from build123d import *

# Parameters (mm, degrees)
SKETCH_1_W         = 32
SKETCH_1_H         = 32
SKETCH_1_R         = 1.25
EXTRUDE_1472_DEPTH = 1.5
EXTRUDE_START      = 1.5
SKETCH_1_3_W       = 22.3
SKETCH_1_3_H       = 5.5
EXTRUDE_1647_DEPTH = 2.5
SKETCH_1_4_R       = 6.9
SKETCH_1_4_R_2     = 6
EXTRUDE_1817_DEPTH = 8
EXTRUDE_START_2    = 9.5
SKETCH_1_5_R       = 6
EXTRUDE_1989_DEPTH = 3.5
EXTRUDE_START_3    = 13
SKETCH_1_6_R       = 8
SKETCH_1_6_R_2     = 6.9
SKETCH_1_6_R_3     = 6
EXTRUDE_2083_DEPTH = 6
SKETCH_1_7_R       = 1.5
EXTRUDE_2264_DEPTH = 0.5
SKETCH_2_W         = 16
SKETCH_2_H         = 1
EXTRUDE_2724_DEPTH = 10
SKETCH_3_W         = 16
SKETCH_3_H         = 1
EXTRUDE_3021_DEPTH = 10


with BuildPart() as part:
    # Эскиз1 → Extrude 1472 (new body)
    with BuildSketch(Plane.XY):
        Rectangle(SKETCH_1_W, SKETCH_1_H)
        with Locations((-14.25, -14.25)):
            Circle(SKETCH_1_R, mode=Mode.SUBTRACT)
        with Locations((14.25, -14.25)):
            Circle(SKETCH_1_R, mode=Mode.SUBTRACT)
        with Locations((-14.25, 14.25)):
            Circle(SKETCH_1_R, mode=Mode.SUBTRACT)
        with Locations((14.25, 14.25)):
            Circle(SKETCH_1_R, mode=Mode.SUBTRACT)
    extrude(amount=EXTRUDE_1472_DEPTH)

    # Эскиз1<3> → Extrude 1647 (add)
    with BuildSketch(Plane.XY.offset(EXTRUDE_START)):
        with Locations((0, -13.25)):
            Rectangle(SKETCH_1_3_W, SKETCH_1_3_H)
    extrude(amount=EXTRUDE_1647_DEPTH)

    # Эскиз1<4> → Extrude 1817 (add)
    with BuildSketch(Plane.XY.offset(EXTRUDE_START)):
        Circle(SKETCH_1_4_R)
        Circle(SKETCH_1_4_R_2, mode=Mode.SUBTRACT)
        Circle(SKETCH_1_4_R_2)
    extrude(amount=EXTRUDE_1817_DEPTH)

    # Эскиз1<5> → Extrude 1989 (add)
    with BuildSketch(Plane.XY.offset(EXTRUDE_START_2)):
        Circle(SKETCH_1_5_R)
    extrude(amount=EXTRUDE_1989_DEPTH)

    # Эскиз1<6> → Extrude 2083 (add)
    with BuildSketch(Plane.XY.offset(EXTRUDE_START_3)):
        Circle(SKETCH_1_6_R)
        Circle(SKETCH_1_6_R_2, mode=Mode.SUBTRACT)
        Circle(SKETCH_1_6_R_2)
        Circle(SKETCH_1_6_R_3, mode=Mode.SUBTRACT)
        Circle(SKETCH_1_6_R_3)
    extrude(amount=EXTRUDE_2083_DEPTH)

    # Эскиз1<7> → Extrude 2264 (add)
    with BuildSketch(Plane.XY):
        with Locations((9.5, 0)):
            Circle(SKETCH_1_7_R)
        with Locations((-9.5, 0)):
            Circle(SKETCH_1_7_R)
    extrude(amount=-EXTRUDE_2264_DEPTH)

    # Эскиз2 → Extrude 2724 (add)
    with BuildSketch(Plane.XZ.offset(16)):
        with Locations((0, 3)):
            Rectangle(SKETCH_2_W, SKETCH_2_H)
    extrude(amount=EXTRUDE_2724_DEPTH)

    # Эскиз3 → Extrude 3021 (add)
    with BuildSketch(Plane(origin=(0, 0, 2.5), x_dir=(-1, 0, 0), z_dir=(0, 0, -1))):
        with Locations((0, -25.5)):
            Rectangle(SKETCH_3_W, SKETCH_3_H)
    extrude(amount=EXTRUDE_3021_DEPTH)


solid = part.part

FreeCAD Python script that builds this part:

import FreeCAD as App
import Part
import Sketcher
from FreeCAD import Vector

doc = App.newDocument("Part")
params = doc.addObject("Spreadsheet::Sheet", "Params")
for row, (alias, value) in enumerate([
    ("sketch1_diameter", "2.5 mm"),
    ("sketch1_width", "32 mm"),
    ("pad1_length", "1.5 mm"),
    ("sketch2_width", "22.3 mm"),
    ("sketch2_height", "5.5 mm"),
    ("pad2_length", "2.5 mm"),
    ("sketch3_diameter", "13.8 mm"),
    ("pad3_length", "8 mm"),
    ("sketch4_diameter", "12 mm"),
    ("pad4_length", "3.5 mm"),
    ("sketch5_diameter", "16 mm"),
    ("pad5_length", "6 mm"),
    ("sketch6_diameter", "3 mm"),
    ("pad6_length", "0.5 mm"),
    ("sketch7_width", "16 mm"),
    ("sketch7_height", "1 mm"),
    ("pad7_length", "10 mm"),
    ("sketch8_width", "16 mm"),
    ("sketch8_height", "1 mm"),
    ("pad8_length", "10 mm"),
], start=1):
    params.set(f"A{row}", alias)
    params.set(f"B{row}", "=" + value)
    params.setAlias(f"B{row}", alias)

body = doc.addObject("PartDesign::Body", "Body")

# Sketch on XY plane
sketch1 = body.newObject("Sketcher::SketchObject", "Sketch")
sketch1.AttachmentSupport = (doc.getObject("XY_Plane"), [""])
sketch1.MapMode = "FlatFace"
sketch1.addGeometry(Part.LineSegment(Vector(-16, 16, 0), Vector(-16, -16, 0)), False)
sketch1.addGeometry(Part.LineSegment(Vector(-16, -16, 0), Vector(16, -16, 0)), False)
sketch1.addGeometry(Part.LineSegment(Vector(16, -16, 0), Vector(16, 16, 0)), False)
sketch1.addGeometry(Part.LineSegment(Vector(16, 16, 0), Vector(-16, 16, 0)), False)
sketch1.addGeometry(Part.Circle(Vector(-14.2, -14.2, 0), Vector(0, 0, 1), 1.2), False)
sketch1.addGeometry(Part.Circle(Vector(14.2, -14.2, 0), Vector(0, 0, 1), 1.2), False)
sketch1.addGeometry(Part.Circle(Vector(-14.2, 14.2, 0), Vector(0, 0, 1), 1.2), False)
sketch1.addGeometry(Part.Circle(Vector(14.2, 14.2, 0), Vector(0, 0, 1), 1.2), False)
sketch1.addConstraint(Sketcher.Constraint("Coincident", 0, 2, 1, 1))
sketch1.addConstraint(Sketcher.Constraint("Coincident", 1, 2, 2, 1))
sketch1.addConstraint(Sketcher.Constraint("Coincident", 2, 2, 3, 1))
sketch1.addConstraint(Sketcher.Constraint("Coincident", 3, 2, 0, 1))
sketch1.addConstraint(Sketcher.Constraint("Vertical", 0))
sketch1.addConstraint(Sketcher.Constraint("Horizontal", 1))
sketch1.addConstraint(Sketcher.Constraint("Vertical", 2))
sketch1.addConstraint(Sketcher.Constraint("Horizontal", 3))
sketch1.addConstraint(Sketcher.Constraint("Equal", 4, 5))
sketch1.addConstraint(Sketcher.Constraint("Equal", 5, 6))
sketch1.addConstraint(Sketcher.Constraint("Equal", 6, 7))
sketch1.addConstraint(Sketcher.Constraint("Symmetric", 5, 3, 6, 3, -1, 1))
sketch1.addConstraint(Sketcher.Constraint("Symmetric", 4, 3, 7, 3, -1, 1))
sketch1.addConstraint(Sketcher.Constraint("Symmetric", 0, 2, 2, 2, -1, 1))
sketch1.addConstraint(Sketcher.Constraint("Symmetric", 4, 3, 5, 3, -2))
sketch1.addConstraint(Sketcher.Constraint("Equal", 3, 0))
sketch1.addConstraint(Sketcher.Constraint("Diameter", 4, 2.5))
sketch1.addConstraint(Sketcher.Constraint("DistanceX", 1, 1, 1, 2, 32.0))
sketch1.addConstraint(Sketcher.Constraint("DistanceX", 4, 3, 5, 3, 28.5))
sketch1.addConstraint(Sketcher.Constraint("DistanceY", 4, 3, 6, 3, 28.5))
sketch1.setExpression("Constraints[16]", "Params.sketch1_diameter")
sketch1.setExpression("Constraints[17]", "Params.sketch1_width")
pad1 = body.newObject("PartDesign::Pad", "Pad")
pad1.Profile = sketch1
pad1.setExpression("Length", "Params.pad1_length")

# Sketch on XY plane
sketch2 = body.newObject("Sketcher::SketchObject", "Sketch001")
sketch2.AttachmentSupport = (doc.getObject("XY_Plane"), [""])
sketch2.MapMode = "FlatFace"
sketch2.AttachmentOffset = App.Placement(Vector(0, 0, 1.5), App.Rotation())
sketch2.addGeometry(Part.LineSegment(Vector(-11, -10, 0), Vector(-11, -16, 0)), False)
sketch2.addGeometry(Part.LineSegment(Vector(-11, -16, 0), Vector(11, -16, 0)), False)
sketch2.addGeometry(Part.LineSegment(Vector(11, -16, 0), Vector(11, -10, 0)), False)
sketch2.addGeometry(Part.LineSegment(Vector(11, -10, 0), Vector(-11, -10, 0)), False)
sketch2.addConstraint(Sketcher.Constraint("Coincident", 0, 2, 1, 1))
sketch2.addConstraint(Sketcher.Constraint("Coincident", 1, 2, 2, 1))
sketch2.addConstraint(Sketcher.Constraint("Coincident", 2, 2, 3, 1))
sketch2.addConstraint(Sketcher.Constraint("Coincident", 3, 2, 0, 1))
sketch2.addConstraint(Sketcher.Constraint("Vertical", 0))
sketch2.addConstraint(Sketcher.Constraint("Horizontal", 1))
sketch2.addConstraint(Sketcher.Constraint("Vertical", 2))
sketch2.addConstraint(Sketcher.Constraint("Horizontal", 3))
sketch2.addConstraint(Sketcher.Constraint("DistanceX", 1, 1, 1, 2, 22.3))
sketch2.addConstraint(Sketcher.Constraint("DistanceY", 0, 2, 0, 1, 5.5))
sketch2.addConstraint(Sketcher.Constraint("DistanceY", 0, 2, -1, 1, 16.0))
sketch2.addConstraint(Sketcher.Constraint("DistanceX", 0, 2, -1, 1, 11.15))
sketch2.setExpression("Constraints[8]", "Params.sketch2_width")
sketch2.setExpression("Constraints[9]", "Params.sketch2_height")
pad2 = body.newObject("PartDesign::Pad", "Pad001")
pad2.Profile = sketch2
pad2.setExpression("Length", "Params.pad2_length")

# Sketch on XY plane
sketch3 = body.newObject("Sketcher::SketchObject", "Sketch002")
sketch3.AttachmentSupport = (doc.getObject("XY_Plane"), [""])
sketch3.MapMode = "FlatFace"
sketch3.AttachmentOffset = App.Placement(Vector(0, 0, 1.5), App.Rotation())
sketch3.addGeometry(Part.Circle(Vector(0, 0, 0), Vector(0, 0, 1), 7), False)
sketch3.addConstraint(Sketcher.Constraint("Coincident", 0, 3, -1, 1))
sketch3.addConstraint(Sketcher.Constraint("Diameter", 0, 13.8))
sketch3.setExpression("Constraints[1]", "Params.sketch3_diameter")
pad3 = body.newObject("PartDesign::Pad", "Pad002")
pad3.Profile = sketch3
pad3.setExpression("Length", "Params.pad3_length")

# Sketch on XY plane
sketch4 = body.newObject("Sketcher::SketchObject", "Sketch003")
sketch4.AttachmentSupport = (doc.getObject("XY_Plane"), [""])
sketch4.MapMode = "FlatFace"
sketch4.AttachmentOffset = App.Placement(Vector(0, 0, 9.5), App.Rotation())
sketch4.addGeometry(Part.Circle(Vector(0, 0, 0), Vector(0, 0, 1), 6), False)
sketch4.addConstraint(Sketcher.Constraint("Coincident", 0, 3, -1, 1))
sketch4.addConstraint(Sketcher.Constraint("Diameter", 0, 12.0))
sketch4.setExpression("Constraints[1]", "Params.sketch4_diameter")
pad4 = body.newObject("PartDesign::Pad", "Pad003")
pad4.Profile = sketch4
pad4.setExpression("Length", "Params.pad4_length")

# Sketch on XY plane
sketch5 = body.newObject("Sketcher::SketchObject", "Sketch004")
sketch5.AttachmentSupport = (doc.getObject("XY_Plane"), [""])
sketch5.MapMode = "FlatFace"
sketch5.AttachmentOffset = App.Placement(Vector(0, 0, 13), App.Rotation())
sketch5.addGeometry(Part.Circle(Vector(0, 0, 0), Vector(0, 0, 1), 8), False)
sketch5.addConstraint(Sketcher.Constraint("Coincident", 0, 3, -1, 1))
sketch5.addConstraint(Sketcher.Constraint("Diameter", 0, 16.0))
sketch5.setExpression("Constraints[1]", "Params.sketch5_diameter")
pad5 = body.newObject("PartDesign::Pad", "Pad004")
pad5.Profile = sketch5
pad5.setExpression("Length", "Params.pad5_length")

# Sketch on XY plane
sketch6 = body.newObject("Sketcher::SketchObject", "Sketch005")
sketch6.AttachmentSupport = (doc.getObject("XY_Plane"), [""])
sketch6.MapMode = "FlatFace"
sketch6.addGeometry(Part.Circle(Vector(9.5, 0, 0), Vector(0, 0, 1), 1.5), False)
sketch6.addGeometry(Part.Circle(Vector(-9.5, 0, 0), Vector(0, 0, 1), 1.5), False)
sketch6.addConstraint(Sketcher.Constraint("Equal", 0, 1))
sketch6.addConstraint(Sketcher.Constraint("Symmetric", 0, 3, 1, 3, -1, 1))
sketch6.addConstraint(Sketcher.Constraint("PointOnObject", 0, 3, -1))
sketch6.addConstraint(Sketcher.Constraint("Diameter", 0, 3.0))
sketch6.addConstraint(Sketcher.Constraint("DistanceX", 1, 3, 0, 3, 19.0))
sketch6.setExpression("Constraints[3]", "Params.sketch6_diameter")
pad6 = body.newObject("PartDesign::Pad", "Pad005")
pad6.Profile = sketch6
pad6.setExpression("Length", "Params.pad6_length")
pad6.Reversed = True

# Sketch on XZ plane
sketch7 = body.newObject("Sketcher::SketchObject", "Sketch006")
sketch7.AttachmentSupport = (doc.getObject("XZ_Plane"), [""])
sketch7.MapMode = "FlatFace"
sketch7.AttachmentOffset = App.Placement(Vector(0, 0, 16), App.Rotation())
sketch7.addGeometry(Part.LineSegment(Vector(-8, 3.5, 0), Vector(-8, 2.5, 0)), False)
sketch7.addGeometry(Part.LineSegment(Vector(-8, 2.5, 0), Vector(8, 2.5, 0)), False)
sketch7.addGeometry(Part.LineSegment(Vector(8, 2.5, 0), Vector(8, 3.5, 0)), False)
sketch7.addGeometry(Part.LineSegment(Vector(8, 3.5, 0), Vector(-8, 3.5, 0)), False)
sketch7.addConstraint(Sketcher.Constraint("Coincident", 0, 2, 1, 1))
sketch7.addConstraint(Sketcher.Constraint("Coincident", 1, 2, 2, 1))
sketch7.addConstraint(Sketcher.Constraint("Coincident", 2, 2, 3, 1))
sketch7.addConstraint(Sketcher.Constraint("Coincident", 3, 2, 0, 1))
sketch7.addConstraint(Sketcher.Constraint("Vertical", 0))
sketch7.addConstraint(Sketcher.Constraint("Horizontal", 1))
sketch7.addConstraint(Sketcher.Constraint("Vertical", 2))
sketch7.addConstraint(Sketcher.Constraint("Horizontal", 3))
sketch7.addConstraint(Sketcher.Constraint("DistanceX", 1, 1, 1, 2, 16.0))
sketch7.addConstraint(Sketcher.Constraint("DistanceY", 0, 2, 0, 1, 1.0))
sketch7.addConstraint(Sketcher.Constraint("DistanceX", 0, 2, -1, 1, 8.0))
sketch7.addConstraint(Sketcher.Constraint("DistanceY", -1, 1, 0, 2, 2.5))
sketch7.setExpression("Constraints[8]", "Params.sketch7_width")
sketch7.setExpression("Constraints[9]", "Params.sketch7_height")
pad7 = body.newObject("PartDesign::Pad", "Pad006")
pad7.Profile = sketch7
pad7.setExpression("Length", "Params.pad7_length")

# Sketch on XY plane
sketch8 = body.newObject("Sketcher::SketchObject", "Sketch007")
sketch8.AttachmentSupport = (doc.getObject("XY_Plane"), [""])
sketch8.MapMode = "FlatFace"
sketch8.AttachmentOffset = App.Placement(Vector(0, 0, 2.5), App.Rotation())
sketch8.addGeometry(Part.LineSegment(Vector(8, -25, 0), Vector(8, -26, 0)), False)
sketch8.addGeometry(Part.LineSegment(Vector(8, -26, 0), Vector(-8, -26, 0)), False)
sketch8.addGeometry(Part.LineSegment(Vector(-8, -26, 0), Vector(-8, -25, 0)), False)
sketch8.addGeometry(Part.LineSegment(Vector(-8, -25, 0), Vector(8, -25, 0)), False)
sketch8.addConstraint(Sketcher.Constraint("Coincident", 0, 2, 1, 1))
sketch8.addConstraint(Sketcher.Constraint("Coincident", 1, 2, 2, 1))
sketch8.addConstraint(Sketcher.Constraint("Coincident", 2, 2, 3, 1))
sketch8.addConstraint(Sketcher.Constraint("Coincident", 3, 2, 0, 1))
sketch8.addConstraint(Sketcher.Constraint("Vertical", 0))
sketch8.addConstraint(Sketcher.Constraint("Horizontal", 1))
sketch8.addConstraint(Sketcher.Constraint("Vertical", 2))
sketch8.addConstraint(Sketcher.Constraint("Horizontal", 3))
sketch8.addConstraint(Sketcher.Constraint("DistanceX", 1, 2, 1, 1, 16.0))
sketch8.addConstraint(Sketcher.Constraint("DistanceY", 0, 2, 0, 1, 1.0))
sketch8.addConstraint(Sketcher.Constraint("DistanceX", -1, 1, 0, 2, 8.0))
sketch8.addConstraint(Sketcher.Constraint("DistanceY", 0, 2, -1, 1, 26.0))
sketch8.setExpression("Constraints[8]", "Params.sketch8_width")
sketch8.setExpression("Constraints[9]", "Params.sketch8_height")
pad8 = body.newObject("PartDesign::Pad", "Pad007")
pad8.Profile = sketch8
pad8.setExpression("Length", "Params.pad8_length")
pad8.Reversed = True

doc.recompute()
